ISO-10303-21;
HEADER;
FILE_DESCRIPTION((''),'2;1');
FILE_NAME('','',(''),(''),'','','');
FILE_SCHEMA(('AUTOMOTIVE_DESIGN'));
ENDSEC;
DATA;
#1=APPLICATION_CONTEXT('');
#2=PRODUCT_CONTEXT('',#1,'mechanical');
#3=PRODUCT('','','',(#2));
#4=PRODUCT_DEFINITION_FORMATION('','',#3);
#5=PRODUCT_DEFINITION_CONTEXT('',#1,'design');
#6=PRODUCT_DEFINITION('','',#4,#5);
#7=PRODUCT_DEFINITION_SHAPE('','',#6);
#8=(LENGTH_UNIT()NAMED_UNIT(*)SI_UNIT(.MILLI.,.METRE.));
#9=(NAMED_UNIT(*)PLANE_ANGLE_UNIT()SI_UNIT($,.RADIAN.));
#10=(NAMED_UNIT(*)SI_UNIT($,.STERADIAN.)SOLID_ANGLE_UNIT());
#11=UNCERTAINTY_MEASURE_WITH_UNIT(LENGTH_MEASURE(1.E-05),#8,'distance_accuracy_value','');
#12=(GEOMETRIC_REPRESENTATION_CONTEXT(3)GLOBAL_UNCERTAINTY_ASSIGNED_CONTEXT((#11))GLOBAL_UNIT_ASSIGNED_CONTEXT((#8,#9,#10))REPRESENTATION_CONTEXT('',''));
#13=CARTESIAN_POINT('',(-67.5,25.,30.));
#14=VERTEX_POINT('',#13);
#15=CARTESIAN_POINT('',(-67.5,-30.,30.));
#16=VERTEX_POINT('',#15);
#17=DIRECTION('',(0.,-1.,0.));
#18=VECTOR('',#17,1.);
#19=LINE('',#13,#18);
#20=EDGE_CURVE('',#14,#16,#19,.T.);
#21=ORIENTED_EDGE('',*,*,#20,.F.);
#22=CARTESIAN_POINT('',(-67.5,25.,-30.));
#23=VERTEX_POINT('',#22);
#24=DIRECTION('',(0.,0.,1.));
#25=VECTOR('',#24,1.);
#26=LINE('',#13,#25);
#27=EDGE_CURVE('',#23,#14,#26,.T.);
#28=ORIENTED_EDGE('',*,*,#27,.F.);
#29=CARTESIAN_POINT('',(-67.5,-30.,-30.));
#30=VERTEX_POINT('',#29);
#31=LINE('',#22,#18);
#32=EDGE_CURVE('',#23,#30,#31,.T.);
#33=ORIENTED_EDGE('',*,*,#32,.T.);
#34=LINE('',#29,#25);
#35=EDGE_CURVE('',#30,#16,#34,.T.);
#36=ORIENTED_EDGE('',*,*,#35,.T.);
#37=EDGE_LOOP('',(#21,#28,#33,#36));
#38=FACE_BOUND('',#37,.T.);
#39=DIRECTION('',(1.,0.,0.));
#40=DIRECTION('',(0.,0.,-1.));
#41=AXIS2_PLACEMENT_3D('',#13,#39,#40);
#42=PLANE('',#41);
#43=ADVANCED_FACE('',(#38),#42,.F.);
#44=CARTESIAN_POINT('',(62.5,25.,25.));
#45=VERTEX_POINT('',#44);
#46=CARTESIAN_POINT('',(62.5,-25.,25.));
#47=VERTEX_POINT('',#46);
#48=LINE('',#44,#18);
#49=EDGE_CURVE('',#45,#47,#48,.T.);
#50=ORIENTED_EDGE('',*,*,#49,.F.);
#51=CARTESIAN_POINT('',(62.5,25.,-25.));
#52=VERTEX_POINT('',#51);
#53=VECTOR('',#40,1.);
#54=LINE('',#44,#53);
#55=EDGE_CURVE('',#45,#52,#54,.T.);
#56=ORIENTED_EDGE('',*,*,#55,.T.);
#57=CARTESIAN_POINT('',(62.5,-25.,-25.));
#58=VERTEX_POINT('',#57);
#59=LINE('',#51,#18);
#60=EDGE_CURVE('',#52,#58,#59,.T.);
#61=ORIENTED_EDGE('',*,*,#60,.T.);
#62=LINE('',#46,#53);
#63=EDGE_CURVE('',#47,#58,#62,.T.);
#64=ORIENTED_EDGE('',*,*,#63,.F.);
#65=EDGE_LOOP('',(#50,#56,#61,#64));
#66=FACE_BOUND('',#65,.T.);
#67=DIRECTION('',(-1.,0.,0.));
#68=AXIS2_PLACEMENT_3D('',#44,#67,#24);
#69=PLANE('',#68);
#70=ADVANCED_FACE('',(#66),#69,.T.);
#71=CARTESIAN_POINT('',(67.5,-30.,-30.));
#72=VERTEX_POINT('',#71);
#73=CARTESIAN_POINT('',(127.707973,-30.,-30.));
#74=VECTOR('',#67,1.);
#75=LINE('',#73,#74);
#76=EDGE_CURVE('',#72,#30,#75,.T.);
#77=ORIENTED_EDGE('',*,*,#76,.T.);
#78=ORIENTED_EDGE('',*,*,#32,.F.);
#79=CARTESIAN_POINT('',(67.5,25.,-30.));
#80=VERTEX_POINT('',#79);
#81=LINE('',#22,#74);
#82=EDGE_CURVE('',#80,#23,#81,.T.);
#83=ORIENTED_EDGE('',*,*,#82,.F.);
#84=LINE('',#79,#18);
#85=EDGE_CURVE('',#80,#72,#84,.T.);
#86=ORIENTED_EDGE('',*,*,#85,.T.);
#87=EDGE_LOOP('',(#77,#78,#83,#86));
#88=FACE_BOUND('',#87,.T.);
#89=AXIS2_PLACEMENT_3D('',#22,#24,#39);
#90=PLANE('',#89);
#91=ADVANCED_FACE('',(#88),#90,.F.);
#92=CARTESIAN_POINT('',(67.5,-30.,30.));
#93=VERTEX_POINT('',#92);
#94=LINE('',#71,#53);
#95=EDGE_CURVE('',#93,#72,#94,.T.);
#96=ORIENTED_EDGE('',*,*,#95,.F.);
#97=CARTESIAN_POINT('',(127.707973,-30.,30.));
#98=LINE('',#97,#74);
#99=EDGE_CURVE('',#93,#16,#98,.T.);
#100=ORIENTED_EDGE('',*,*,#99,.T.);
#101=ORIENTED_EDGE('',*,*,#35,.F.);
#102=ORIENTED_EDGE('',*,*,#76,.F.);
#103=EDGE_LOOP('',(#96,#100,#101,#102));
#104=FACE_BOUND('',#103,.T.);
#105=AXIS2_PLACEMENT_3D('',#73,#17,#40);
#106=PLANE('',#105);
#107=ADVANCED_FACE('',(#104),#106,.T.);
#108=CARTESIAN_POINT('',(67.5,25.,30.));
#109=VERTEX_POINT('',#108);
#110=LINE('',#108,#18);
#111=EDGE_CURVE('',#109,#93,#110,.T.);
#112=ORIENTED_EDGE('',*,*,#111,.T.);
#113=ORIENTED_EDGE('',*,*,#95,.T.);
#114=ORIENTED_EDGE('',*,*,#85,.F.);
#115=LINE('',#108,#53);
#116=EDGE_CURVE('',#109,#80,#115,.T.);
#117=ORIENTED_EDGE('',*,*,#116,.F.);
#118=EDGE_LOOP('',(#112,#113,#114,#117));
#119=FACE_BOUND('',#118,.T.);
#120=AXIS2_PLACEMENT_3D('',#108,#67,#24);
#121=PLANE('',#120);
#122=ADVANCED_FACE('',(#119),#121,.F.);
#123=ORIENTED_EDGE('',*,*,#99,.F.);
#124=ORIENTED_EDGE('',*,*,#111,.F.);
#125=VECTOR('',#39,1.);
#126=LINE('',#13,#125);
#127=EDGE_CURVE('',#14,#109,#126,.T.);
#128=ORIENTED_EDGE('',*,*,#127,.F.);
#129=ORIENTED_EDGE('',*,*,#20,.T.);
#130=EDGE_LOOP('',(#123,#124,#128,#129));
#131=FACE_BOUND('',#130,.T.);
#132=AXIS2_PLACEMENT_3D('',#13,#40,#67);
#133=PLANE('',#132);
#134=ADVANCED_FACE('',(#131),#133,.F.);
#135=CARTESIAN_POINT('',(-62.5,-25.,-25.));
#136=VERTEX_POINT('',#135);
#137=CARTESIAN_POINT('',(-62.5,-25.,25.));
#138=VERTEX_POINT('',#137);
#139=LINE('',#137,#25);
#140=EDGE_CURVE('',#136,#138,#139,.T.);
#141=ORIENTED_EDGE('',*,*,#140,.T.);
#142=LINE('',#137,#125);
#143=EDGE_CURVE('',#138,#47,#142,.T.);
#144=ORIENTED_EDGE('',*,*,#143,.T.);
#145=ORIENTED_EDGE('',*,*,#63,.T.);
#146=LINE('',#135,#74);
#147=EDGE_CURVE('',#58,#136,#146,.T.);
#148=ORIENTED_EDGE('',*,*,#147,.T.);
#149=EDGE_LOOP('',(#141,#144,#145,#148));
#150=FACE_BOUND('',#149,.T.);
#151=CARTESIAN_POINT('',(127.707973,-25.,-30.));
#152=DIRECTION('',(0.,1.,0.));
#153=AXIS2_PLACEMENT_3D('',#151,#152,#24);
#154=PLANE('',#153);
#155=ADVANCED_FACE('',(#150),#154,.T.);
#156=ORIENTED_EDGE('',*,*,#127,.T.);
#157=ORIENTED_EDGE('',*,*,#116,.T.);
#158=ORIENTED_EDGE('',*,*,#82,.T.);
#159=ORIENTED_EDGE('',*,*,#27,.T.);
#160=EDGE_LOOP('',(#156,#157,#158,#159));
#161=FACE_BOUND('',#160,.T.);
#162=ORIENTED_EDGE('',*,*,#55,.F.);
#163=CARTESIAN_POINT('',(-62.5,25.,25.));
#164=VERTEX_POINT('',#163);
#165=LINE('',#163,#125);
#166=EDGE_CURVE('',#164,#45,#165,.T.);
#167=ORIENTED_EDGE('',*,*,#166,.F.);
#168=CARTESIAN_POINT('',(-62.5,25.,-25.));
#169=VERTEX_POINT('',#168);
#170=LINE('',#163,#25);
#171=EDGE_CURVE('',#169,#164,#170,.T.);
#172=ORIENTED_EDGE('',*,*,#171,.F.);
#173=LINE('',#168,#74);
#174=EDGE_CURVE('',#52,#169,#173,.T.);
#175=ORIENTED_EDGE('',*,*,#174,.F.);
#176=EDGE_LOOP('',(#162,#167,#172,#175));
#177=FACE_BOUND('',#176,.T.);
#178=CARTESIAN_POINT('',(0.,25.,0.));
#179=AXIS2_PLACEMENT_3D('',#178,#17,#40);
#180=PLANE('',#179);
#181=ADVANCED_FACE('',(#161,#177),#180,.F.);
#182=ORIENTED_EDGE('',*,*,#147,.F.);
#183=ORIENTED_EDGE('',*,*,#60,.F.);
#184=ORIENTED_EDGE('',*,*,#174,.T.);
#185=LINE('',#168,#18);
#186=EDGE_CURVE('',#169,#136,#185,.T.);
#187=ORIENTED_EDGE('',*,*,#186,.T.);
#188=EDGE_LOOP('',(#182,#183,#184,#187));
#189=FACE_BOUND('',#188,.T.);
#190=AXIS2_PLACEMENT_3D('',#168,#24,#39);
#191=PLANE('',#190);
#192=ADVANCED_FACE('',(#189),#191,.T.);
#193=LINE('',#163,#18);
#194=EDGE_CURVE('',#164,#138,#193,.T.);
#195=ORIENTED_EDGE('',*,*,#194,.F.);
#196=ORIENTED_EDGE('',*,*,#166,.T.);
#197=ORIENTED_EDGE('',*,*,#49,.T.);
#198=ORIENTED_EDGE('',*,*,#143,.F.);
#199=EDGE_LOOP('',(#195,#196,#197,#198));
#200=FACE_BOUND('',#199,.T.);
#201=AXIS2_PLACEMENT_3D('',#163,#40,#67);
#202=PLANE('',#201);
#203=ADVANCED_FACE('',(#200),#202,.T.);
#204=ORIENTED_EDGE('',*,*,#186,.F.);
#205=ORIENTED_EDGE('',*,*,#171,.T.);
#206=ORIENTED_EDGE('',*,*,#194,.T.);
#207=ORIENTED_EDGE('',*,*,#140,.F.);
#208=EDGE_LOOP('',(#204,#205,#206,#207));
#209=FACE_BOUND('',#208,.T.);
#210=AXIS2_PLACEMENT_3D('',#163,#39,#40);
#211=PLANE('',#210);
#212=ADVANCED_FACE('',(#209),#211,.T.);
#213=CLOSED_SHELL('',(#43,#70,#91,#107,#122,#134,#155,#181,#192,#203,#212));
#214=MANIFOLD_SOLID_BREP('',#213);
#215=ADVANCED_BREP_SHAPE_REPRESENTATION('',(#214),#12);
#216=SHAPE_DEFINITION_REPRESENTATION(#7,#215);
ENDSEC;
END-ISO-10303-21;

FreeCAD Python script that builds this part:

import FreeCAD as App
import Part
import Sketcher

doc = App.newDocument("Part")
params = doc.addObject("Spreadsheet::Sheet", "Params")
for row, (alias, value) in enumerate([
    ("sketch1_width", "135 mm"),
    ("sketch1_width2", "125 mm"),
    ("sketch1_height", "60 mm"),
    ("sketch1_height2", "50 mm"),
    ("pad1_length", "50 mm"),
    ("sketch2_width", "5 mm"),
    ("sketch2_height", "60 mm"),
    ("pad2_length", "135 mm"),
], start=1):
    params.set(f"A{row}", alias)
    params.set(f"B{row}", "=" + value)
    params.setAlias(f"B{row}", alias)

body = doc.addObject("PartDesign::Body", "Body")

sketch1 = body.newObject("Sketcher::SketchObject", "Sketch")
sketch1.AttachmentSupport = (doc.getObject("XZ_Plane"), [""])
sketch1.MapMode = "FlatFace"
sketch1.addGeometry(Part.LineSegment(App.Vector(-68, -30, 0), App.Vector(-68, 30, 0)), False)
sketch1.addGeometry(Part.LineSegment(App.Vector(-68, 30, 0), App.Vector(68, 30, 0)), False)
sketch1.addGeometry(Part.LineSegment(App.Vector(68, 30, 0), App.Vector(68, -30, 0)), False)
sketch1.addGeometry(Part.LineSegment(App.Vector(68, -30, 0), App.Vector(-68, -30, 0)), False)
sketch1.addGeometry(Part.LineSegment(App.Vector(62, 25, 0), App.Vector(-62, 25, 0)), False)
sketch1.addGeometry(Part.LineSegment(App.Vector(-62, 25, 0), App.Vector(-62, -25, 0)), False)
sketch1.addGeometry(Part.LineSegment(App.Vector(-62, -25, 0), App.Vector(62, -25, 0)), False)
sketch1.addGeometry(Part.LineSegment(App.Vector(62, -25, 0), App.Vector(62, 25, 0)), False)
sketch1.addConstraint(Sketcher.Constraint("Coincident", 0, 2, 1, 1))
sketch1.addConstraint(Sketcher.Constraint("Coincident", 1, 2, 2, 1))
sketch1.addConstraint(Sketcher.Constraint("Coincident", 2, 2, 3, 1))
sketch1.addConstraint(Sketcher.Constraint("Coincident", 3, 2, 0, 1))
sketch1.addConstraint(Sketcher.Constraint("Coincident", 4, 2, 5, 1))
sketch1.addConstraint(Sketcher.Constraint("Coincident", 5, 2, 6, 1))
sketch1.addConstraint(Sketcher.Constraint("Coincident", 6, 2, 7, 1))
sketch1.addConstraint(Sketcher.Constraint("Coincident", 7, 2, 4, 1))
sketch1.addConstraint(Sketcher.Constraint("Vertical", 0))
sketch1.addConstraint(Sketcher.Constraint("Horizontal", 1))
sketch1.addConstraint(Sketcher.Constraint("Vertical", 2))
sketch1.addConstraint(Sketcher.Constraint("Horizontal", 3))
sketch1.addConstraint(Sketcher.Constraint("Horizontal", 4))
sketch1.addConstraint(Sketcher.Constraint("Vertical", 5))
sketch1.addConstraint(Sketcher.Constraint("Horizontal", 6))
sketch1.addConstraint(Sketcher.Constraint("Vertical", 7))
sketch1.addConstraint(Sketcher.Constraint("Symmetric", 0, 2, 2, 2, -1, 1))
sketch1.addConstraint(Sketcher.Constraint("Symmetric", 4, 2, 6, 2, -1, 1))
sketch1.addConstraint(Sketcher.Constraint("DistanceX", 1, 1, 1, 2, 135.0))
sketch1.addConstraint(Sketcher.Constraint("DistanceX", 4, 2, 4, 1, 125.0))
sketch1.addConstraint(Sketcher.Constraint("DistanceY", 0, 1, 0, 2, 60.0))
sketch1.addConstraint(Sketcher.Constraint("DistanceY", 5, 2, 5, 1, 50.0))
sketch1.setExpression("Constraints[18]", "Params.sketch1_width")
sketch1.setExpression("Constraints[19]", "Params.sketch1_width2")
sketch1.setExpression("Constraints[20]", "Params.sketch1_height")
sketch1.setExpression("Constraints[21]", "Params.sketch1_height2")
pad1 = body.newObject("PartDesign::Pad", "Pad")
pad1.Profile = sketch1
pad1.setExpression("Length", "Params.pad1_length")
pad1.Midplane = True

sketch2 = body.newObject("Sketcher::SketchObject", "Sketch001")
sketch2.AttachmentSupport = (doc.getObject("YZ_Plane"), [""])
sketch2.MapMode = "FlatFace"
sketch2.AttachmentOffset = App.Placement(App.Vector(0, 0, -67.5), App.Rotation())
sketch2.addGeometry(Part.LineSegment(App.Vector(-25, -30, 0), App.Vector(-30, -30, 0)), False)
sketch2.addGeometry(Part.LineSegment(App.Vector(-30, -30, 0), App.Vector(-30, 30, 0)), False)
sketch2.addGeometry(Part.LineSegment(App.Vector(-30, 30, 0), App.Vector(-25, 30, 0)), False)
sketch2.addGeometry(Part.LineSegment(App.Vector(-25, 30, 0), App.Vector(-25, -30, 0)), False)
sketch2.addConstraint(Sketcher.Constraint("Coincident", 0, 2, 1, 1))
sketch2.addConstraint(Sketcher.Constraint("Coincident", 1, 2, 2, 1))
sketch2.addConstraint(Sketcher.Constraint("Coincident", 2, 2, 3, 1))
sketch2.addConstraint(Sketcher.Constraint("Coincident", 3, 2, 0, 1))
sketch2.addConstraint(Sketcher.Constraint("Horizontal", 0))
sketch2.addConstraint(Sketcher.Constraint("Vertical", 1))
sketch2.addConstraint(Sketcher.Constraint("Horizontal", 2))
sketch2.addConstraint(Sketcher.Constraint("Vertical", 3))
sketch2.addConstraint(Sketcher.Constraint("DistanceX", 0, 2, 0, 1, 5.0))
sketch2.addConstraint(Sketcher.Constraint("DistanceY", 1, 1, 1, 2, 60.0))
sketch2.addConstraint(Sketcher.Constraint("DistanceX", 0, 2, -1, 1, 30.0))
sketch2.addConstraint(Sketcher.Constraint("DistanceY", 0, 2, -1, 1, 30.0))
sketch2.setExpression("Constraints[8]", "Params.sketch2_width")
sketch2.setExpression("Constraints[9]", "Params.sketch2_height")
pad2 = body.newObject("PartDesign::Pad", "Pad001")
pad2.Profile = sketch2
pad2.setExpression("Length", "Params.pad2_length")

doc.recompute()
